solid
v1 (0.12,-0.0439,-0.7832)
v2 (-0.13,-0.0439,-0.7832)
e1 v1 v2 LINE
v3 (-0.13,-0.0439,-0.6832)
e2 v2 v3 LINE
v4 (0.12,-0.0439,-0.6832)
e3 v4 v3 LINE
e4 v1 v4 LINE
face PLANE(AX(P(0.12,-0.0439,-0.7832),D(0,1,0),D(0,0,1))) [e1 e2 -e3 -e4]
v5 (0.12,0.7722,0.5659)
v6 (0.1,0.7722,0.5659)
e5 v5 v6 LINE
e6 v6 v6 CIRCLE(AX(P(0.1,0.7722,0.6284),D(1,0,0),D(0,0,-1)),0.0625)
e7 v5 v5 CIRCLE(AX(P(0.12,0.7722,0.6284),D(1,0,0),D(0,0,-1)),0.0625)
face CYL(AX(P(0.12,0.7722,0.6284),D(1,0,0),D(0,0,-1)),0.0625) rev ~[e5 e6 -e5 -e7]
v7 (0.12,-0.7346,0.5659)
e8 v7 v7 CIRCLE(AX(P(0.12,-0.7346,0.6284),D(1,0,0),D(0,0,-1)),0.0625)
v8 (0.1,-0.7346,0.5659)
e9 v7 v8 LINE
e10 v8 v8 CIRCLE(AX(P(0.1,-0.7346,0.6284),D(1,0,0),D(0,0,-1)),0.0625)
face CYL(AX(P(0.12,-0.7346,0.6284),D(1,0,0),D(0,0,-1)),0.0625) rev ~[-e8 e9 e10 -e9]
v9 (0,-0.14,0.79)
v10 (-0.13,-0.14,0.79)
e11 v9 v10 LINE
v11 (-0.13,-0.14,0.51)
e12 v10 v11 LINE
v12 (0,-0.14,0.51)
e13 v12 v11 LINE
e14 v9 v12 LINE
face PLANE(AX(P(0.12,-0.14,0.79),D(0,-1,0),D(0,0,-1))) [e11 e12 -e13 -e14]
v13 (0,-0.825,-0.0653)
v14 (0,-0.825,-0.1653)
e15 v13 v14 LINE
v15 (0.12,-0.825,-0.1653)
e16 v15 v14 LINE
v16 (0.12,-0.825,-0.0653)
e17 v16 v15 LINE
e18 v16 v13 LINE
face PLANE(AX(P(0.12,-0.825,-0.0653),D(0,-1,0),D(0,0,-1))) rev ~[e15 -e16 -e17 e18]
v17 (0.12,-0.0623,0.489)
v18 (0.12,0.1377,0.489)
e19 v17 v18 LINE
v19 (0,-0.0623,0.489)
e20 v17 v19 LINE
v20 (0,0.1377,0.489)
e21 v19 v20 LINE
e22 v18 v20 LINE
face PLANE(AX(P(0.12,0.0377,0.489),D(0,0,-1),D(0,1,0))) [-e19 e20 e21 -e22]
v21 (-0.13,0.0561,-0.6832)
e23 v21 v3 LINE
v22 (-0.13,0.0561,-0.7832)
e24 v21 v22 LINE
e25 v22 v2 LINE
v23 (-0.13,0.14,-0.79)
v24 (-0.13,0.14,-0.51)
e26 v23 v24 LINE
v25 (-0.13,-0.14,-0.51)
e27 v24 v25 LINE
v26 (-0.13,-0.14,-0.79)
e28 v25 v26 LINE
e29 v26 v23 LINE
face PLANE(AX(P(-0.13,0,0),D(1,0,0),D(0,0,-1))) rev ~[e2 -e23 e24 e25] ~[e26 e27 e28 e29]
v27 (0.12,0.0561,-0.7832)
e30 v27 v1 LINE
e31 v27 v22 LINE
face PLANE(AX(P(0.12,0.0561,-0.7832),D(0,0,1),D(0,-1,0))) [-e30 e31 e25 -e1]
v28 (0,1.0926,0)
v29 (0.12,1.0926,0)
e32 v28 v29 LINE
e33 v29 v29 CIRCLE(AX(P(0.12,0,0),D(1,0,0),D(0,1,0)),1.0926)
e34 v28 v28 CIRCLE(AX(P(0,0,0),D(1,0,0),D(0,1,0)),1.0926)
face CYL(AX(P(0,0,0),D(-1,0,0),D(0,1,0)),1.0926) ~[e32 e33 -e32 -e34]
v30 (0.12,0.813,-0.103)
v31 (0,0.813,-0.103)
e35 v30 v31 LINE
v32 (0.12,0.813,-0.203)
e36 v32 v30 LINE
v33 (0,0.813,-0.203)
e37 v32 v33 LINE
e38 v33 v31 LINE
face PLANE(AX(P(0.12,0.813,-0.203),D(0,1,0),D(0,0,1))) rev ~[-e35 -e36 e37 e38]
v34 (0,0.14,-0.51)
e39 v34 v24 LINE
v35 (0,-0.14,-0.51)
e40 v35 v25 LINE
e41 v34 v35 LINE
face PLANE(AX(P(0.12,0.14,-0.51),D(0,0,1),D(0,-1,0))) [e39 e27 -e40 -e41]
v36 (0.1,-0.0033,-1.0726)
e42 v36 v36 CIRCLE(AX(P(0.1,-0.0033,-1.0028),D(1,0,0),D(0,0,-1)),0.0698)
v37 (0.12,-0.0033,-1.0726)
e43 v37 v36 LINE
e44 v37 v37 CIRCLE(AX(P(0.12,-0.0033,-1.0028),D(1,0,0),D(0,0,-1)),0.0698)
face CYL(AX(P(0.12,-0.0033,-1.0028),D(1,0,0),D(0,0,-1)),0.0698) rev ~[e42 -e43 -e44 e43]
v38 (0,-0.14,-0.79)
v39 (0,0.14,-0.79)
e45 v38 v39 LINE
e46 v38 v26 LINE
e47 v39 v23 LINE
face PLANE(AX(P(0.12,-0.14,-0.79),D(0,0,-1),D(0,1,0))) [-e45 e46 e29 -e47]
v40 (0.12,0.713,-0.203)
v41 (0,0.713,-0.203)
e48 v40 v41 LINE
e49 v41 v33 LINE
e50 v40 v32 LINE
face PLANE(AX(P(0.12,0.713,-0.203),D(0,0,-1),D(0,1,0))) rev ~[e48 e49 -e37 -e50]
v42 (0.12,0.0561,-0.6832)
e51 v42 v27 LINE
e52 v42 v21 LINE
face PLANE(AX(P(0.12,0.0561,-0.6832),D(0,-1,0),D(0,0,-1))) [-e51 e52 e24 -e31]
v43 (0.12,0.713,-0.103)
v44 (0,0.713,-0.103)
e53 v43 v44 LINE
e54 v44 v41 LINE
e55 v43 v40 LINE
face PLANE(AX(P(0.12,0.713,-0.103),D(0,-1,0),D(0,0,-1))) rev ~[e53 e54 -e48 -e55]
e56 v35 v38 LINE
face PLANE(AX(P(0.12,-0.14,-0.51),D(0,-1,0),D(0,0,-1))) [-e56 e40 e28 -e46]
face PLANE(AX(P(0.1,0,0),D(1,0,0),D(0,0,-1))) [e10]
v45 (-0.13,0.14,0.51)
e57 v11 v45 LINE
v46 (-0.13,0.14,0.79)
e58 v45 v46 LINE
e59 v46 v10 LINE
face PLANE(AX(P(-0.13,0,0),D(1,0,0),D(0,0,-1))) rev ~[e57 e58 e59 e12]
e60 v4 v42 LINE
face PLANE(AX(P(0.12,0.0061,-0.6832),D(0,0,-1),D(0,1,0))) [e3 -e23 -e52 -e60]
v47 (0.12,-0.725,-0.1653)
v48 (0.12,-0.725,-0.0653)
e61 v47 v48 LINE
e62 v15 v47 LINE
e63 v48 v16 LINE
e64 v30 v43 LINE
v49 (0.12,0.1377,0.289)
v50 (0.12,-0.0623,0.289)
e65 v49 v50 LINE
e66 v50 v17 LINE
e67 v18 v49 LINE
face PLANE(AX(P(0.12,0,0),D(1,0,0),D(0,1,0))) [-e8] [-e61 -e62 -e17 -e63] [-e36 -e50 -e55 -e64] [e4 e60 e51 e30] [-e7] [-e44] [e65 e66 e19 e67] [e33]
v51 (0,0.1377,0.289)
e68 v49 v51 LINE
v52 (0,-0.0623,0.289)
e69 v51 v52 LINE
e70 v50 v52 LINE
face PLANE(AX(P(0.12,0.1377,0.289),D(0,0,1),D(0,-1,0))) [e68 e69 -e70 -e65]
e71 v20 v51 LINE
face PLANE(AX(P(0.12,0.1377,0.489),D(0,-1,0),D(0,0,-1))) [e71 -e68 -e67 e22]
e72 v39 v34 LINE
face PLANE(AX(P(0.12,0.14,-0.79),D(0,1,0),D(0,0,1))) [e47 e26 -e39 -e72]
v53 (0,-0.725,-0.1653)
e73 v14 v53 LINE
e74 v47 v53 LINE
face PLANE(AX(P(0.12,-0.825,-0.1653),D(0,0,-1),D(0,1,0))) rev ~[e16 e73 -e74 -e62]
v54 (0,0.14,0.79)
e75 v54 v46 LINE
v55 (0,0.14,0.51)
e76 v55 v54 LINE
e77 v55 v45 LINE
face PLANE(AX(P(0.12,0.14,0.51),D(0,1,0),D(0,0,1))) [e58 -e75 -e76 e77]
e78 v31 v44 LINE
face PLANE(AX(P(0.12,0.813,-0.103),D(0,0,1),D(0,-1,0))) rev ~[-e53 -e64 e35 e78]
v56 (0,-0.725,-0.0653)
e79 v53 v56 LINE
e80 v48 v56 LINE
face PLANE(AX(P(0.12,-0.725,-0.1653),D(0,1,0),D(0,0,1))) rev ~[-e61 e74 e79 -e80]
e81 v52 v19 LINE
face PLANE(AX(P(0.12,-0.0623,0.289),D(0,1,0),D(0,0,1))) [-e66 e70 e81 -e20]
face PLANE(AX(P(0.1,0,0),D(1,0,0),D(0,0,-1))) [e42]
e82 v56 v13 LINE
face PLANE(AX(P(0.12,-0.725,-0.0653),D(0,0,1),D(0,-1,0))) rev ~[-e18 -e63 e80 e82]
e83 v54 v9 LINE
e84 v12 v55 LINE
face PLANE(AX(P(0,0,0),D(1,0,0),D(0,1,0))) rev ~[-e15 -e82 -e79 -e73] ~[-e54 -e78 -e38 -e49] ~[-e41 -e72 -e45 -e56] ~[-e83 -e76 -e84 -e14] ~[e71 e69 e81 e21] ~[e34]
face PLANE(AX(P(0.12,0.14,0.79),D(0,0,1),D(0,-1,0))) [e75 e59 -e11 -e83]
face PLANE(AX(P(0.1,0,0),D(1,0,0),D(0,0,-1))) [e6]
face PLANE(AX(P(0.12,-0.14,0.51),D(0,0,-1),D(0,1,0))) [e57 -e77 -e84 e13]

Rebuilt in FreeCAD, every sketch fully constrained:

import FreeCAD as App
import Part
import Sketcher
Q = App.Units.Quantity


def add_polygon(sketch, points):
    """Adds a closed chain of lines whose ends are joined by coincident constraints."""
    first, n = sketch.GeometryCount, len(points)
    for a, b in zip(points, points[1:] + points[:1]):
        sketch.addGeometry(Part.LineSegment(App.Vector(*a, 0), App.Vector(*b, 0)), False)
    for i in range(n):
        sketch.addConstraint(Sketcher.Constraint("Coincident", first + i, 2, first + (i + 1) % n, 1))

doc = App.newDocument("Part")
body = doc.addObject("PartDesign::Body", "Body")

sketch1 = doc.addObject("Sketcher::SketchObject", "Sketch")
body.addObject(sketch1)
sketch1.AttachmentSupport = (doc.YZ_Plane, [""])
sketch1.MapMode = "FlatFace"
sketch1.addGeometry(Part.Circle(App.Vector(0, 0, 0), App.Vector(0, 0, 1), 1.1), False)
sketch1.addConstraint([
    Sketcher.Constraint("Coincident", 0, 3, -1, 1),
    Sketcher.Constraint("Diameter", 0, Q("2.1852 mm")),
])
pad1 = doc.addObject("PartDesign::Pad", "Pad")
body.addObject(pad1)
pad1.Profile = sketch1
pad1.Length = 0.12

sketch2 = doc.addObject("Sketcher::SketchObject", "Sketch001")
body.addObject(sketch2)
sketch2.AttachmentSupport = (doc.YZ_Plane, [""])
sketch2.MapMode = "FlatFace"
sketch2.AttachmentOffset = App.Placement(App.Vector(0, 0, 0.12), App.Rotation())
add_polygon(sketch2, [(-0.14, -0.79), (0.14, -0.79), (0.14, -0.51), (-0.14, -0.51)])
add_polygon(sketch2, [(-0.14, 0.51), (0.14, 0.51), (0.14, 0.79), (-0.14, 0.79)])
sketch2.addConstraint([
    Sketcher.Constraint("Horizontal", 0),
    Sketcher.Constraint("Vertical", 1),
    Sketcher.Constraint("Horizontal", 2),
    Sketcher.Constraint("Vertical", 3),
    Sketcher.Constraint("Horizontal", 4),
    Sketcher.Constraint("Vertical", 5),
    Sketcher.Constraint("Horizontal", 6),
    Sketcher.Constraint("Vertical", 7),
    Sketcher.Constraint("Symmetric", 2, 2, 4, 2, -1, 1),
    Sketcher.Constraint("Symmetric", 0, 2, 6, 2, -1, 1),
    Sketcher.Constraint("Vertical", 1, 2, 4, 2),
    Sketcher.Constraint("Equal", 6, 1),
    Sketcher.Constraint("DistanceX", 0, 1, 0, 2, Q("0.28 mm")),
    Sketcher.Constraint("DistanceY", 0, 2, 4, 2, Q("1.3 mm")),
])
pad2 = doc.addObject("PartDesign::Pad", "Pad001")
body.addObject(pad2)
pad2.Profile = sketch2
pad2.Length = 0.25
pad2.Reversed = True

sketch3 = doc.addObject("Sketcher::SketchObject", "Sketch002")
body.addObject(sketch3)
sketch3.AttachmentSupport = (doc.YZ_Plane, [""])
sketch3.MapMode = "FlatFace"
sketch3.AttachmentOffset = App.Placement(App.Vector(0, 0, 0.12), App.Rotation())
add_polygon(sketch3, [(0.14, 0.49), (-0.06, 0.49), (-0.06, 0.29), (0.14, 0.29)])
add_polygon(sketch3, [(0.06, -0.68), (-0.04, -0.68), (-0.04, -0.78), (0.06, -0.78)])
add_polygon(sketch3, [(0.81, -0.2), (0.81, -0.1), (0.71, -0.1), (0.71, -0.2)])
add_polygon(sketch3, [(-0.72, -0.17), (-0.72, -0.07), (-0.82, -0.07), (-0.82, -0.17)])
sketch3.addConstraint([
    Sketcher.Constraint("Horizontal", 0),
    Sketcher.Constraint("Vertical", 1),
    Sketcher.Constraint("Horizontal", 2),
    Sketcher.Constraint("Vertical", 3),
    Sketcher.Constraint("Horizontal", 4),
    Sketcher.Constraint("Vertical", 5),
    Sketcher.Constraint("Horizontal", 6),
    Sketcher.Constraint("Vertical", 7),
    Sketcher.Constraint("Vertical", 8),
    Sketcher.Constraint("Horizontal", 9),
    Sketcher.Constraint("Vertical", 10),
    Sketcher.Constraint("Horizontal", 11),
    Sketcher.Constraint("Vertical", 12),
    Sketcher.Constraint("Horizontal", 13),
    Sketcher.Constraint("Vertical", 14),
    Sketcher.Constraint("Horizontal", 15),
    Sketcher.Constraint("Equal", 6, 9),
    Sketcher.Constraint("Equal", 11, 13),
    Sketcher.Constraint("Equal", 2, 1),
    Sketcher.Constraint("Equal", 15, 5),
    Sketcher.Constraint("Equal", 7, 8),
    Sketcher.Constraint("Equal", 10, 12),
    Sketcher.Constraint("DistanceX", 0, 2, 0, 1, Q("0.2 mm")),
    Sketcher.Constraint("DistanceX", 4, 2, 4, 1, Q("0.1 mm")),
    Sketcher.Constraint("DistanceY", -1, 1, 0, 2, Q("0.489 mm")),
    Sketcher.Constraint("DistanceX", 4, 2, -1, 1, Q("0.044 mm")),
    Sketcher.Constraint("DistanceX", -1, 1, 8, 2, Q("0.813 mm")),
    Sketcher.Constraint("DistanceY", 8, 2, -1, 1, Q("0.103 mm")),
    Sketcher.Constraint("DistanceX", 12, 2, -1, 1, Q("0.725 mm")),
    Sketcher.Constraint("DistanceY", 4, 2, 12, 2, Q("0.618 mm")),
    Sketcher.Constraint("DistanceX", 0, 2, -1, 1, Q("0.0623 mm")),
    Sketcher.Constraint("DistanceY", 4, 2, -1, 1, Q("0.6832 mm")),
])
pocket1 = doc.addObject("PartDesign::Pocket", "Pocket")
body.addObject(pocket1)
pocket1.Profile = sketch3
pocket1.Length = 0.25

sketch4 = doc.addObject("Sketcher::SketchObject", "Sketch003")
body.addObject(sketch4)
sketch4.AttachmentSupport = (doc.YZ_Plane, [""])
sketch4.MapMode = "FlatFace"
sketch4.AttachmentOffset = App.Placement(App.Vector(0, 0, 0.12), App.Rotation())
sketch4.addGeometry([
    Part.Circle(App.Vector(-0.73, 0.63, 0), App.Vector(0, 0, 1), 0.06),
    Part.Circle(App.Vector(0.77, 0.63, 0), App.Vector(0, 0, 1), 0.06),
    Part.Circle(App.Vector(0, -1, 0), App.Vector(0, 0, 1), 0.07),
], False)
sketch4.addConstraint([
    Sketcher.Constraint("Equal", 0, 1),
    Sketcher.Constraint("Horizontal", 0, 3, 1, 3),
    Sketcher.Constraint("Diameter", 0, Q("0.125 mm")),
    Sketcher.Constraint("Diameter", 2, Q("0.1396 mm")),
    Sketcher.Constraint("DistanceX", 0, 3, -1, 1, Q("0.7346 mm")),
    Sketcher.Constraint("DistanceY", -1, 1, 0, 3, Q("0.6284 mm")),
    Sketcher.Constraint("DistanceX", -1, 1, 1, 3, Q("0.7722 mm")),
    Sketcher.Constraint("DistanceX", 2, 3, -1, 1, Q("0.0033 mm")),
    Sketcher.Constraint("DistanceY", 2, 3, -1, 1, Q("1.0028 mm")),
])
pocket2 = doc.addObject("PartDesign::Pocket", "Pocket001")
body.addObject(pocket2)
pocket2.Profile = sketch4
pocket2.Length = 0.02

doc.recompute()
